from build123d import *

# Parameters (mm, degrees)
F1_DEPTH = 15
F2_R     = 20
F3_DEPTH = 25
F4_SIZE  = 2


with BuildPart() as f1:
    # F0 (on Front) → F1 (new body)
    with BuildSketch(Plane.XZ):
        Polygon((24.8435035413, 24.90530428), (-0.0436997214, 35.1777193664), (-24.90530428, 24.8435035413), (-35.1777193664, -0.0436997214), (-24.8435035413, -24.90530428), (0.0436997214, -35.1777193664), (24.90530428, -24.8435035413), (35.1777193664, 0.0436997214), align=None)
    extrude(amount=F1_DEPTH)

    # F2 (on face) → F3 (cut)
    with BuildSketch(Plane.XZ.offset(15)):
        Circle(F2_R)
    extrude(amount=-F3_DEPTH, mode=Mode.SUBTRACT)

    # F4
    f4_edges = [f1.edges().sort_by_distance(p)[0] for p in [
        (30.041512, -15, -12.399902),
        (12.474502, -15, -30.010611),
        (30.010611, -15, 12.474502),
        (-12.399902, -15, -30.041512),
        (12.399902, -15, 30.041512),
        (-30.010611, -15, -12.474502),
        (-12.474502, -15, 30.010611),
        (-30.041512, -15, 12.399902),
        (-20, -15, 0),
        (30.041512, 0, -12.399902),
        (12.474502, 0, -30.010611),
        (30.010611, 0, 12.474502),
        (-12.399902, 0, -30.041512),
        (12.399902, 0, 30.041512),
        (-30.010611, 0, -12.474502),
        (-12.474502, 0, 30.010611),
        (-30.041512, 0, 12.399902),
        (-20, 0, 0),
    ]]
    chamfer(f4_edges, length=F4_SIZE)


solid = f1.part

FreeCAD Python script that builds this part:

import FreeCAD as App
import Part
import Sketcher

V = App.Vector
Q = App.Units.Quantity


def edges_at(feature, points):
    """Names of the edges that pass closest to the given points."""
    edges = feature.Shape.Edges
    near = lambda p: min(range(len(edges)), key=lambda i: edges[i].distToShape(Part.Vertex(*p))[0])
    return sorted({f"Edge{near(p) + 1}" for p in points})


def add_polygon(sketch, points):
    """Adds a closed chain of lines whose ends are joined by coincident constraints."""
    first, n = sketch.GeometryCount, len(points)
    for a, b in zip(points, points[1:] + points[:1]):
        sketch.addGeometry(Part.LineSegment(App.Vector(*a, 0), App.Vector(*b, 0)), False)
    for i in range(n):
        sketch.addConstraint(Sketcher.Constraint("Coincident", first + i, 2, first + (i + 1) % n, 1))

doc = App.newDocument("Part")
params = doc.addObject("Spreadsheet::Sheet", "Params")
for row, (alias, value) in enumerate([
    ("pad1_length", "15 mm"),
    ("sketch2_diameter", "40 mm"),
    ("pocket1_length", "25 mm"),
    ("chamfer_size", "2 mm"),
], start=1):
    params.set(f"A{row}", alias)
    params.set(f"B{row}", "=" + value)
    params.setAlias(f"B{row}", alias)

body = doc.addObject("PartDesign::Body", "Body")

sketch1 = doc.addObject("Sketcher::SketchObject", "Sketch")
body.addObject(sketch1)
sketch1.AttachmentSupport = (doc.XZ_Plane, [""])
sketch1.MapMode = "FlatFace"
add_polygon(sketch1, [(25, 25), (0, 35), (-25, 25), (-35, 0), (-25, -25), (0, -35), (25, -25), (35, 0)])
sketch1.addConstraint(Sketcher.Constraint("Symmetric", 0, 2, 4, 2, -1, 1))
sketch1.addConstraint(Sketcher.Constraint("Symmetric", 1, 2, 5, 2, -1, 1))
sketch1.addConstraint(Sketcher.Constraint("Symmetric", 2, 2, 6, 2, -1, 1))
sketch1.addConstraint(Sketcher.Constraint("Symmetric", 3, 2, 7, 2, -1, 1))
sketch1.addConstraint(Sketcher.Constraint("Perpendicular", 0, 2))
sketch1.addConstraint(Sketcher.Constraint("Perpendicular", 1, 3))
sketch1.addConstraint(Sketcher.Constraint("Equal", 0, 1))
sketch1.addConstraint(Sketcher.Constraint("Equal", 1, 2))
sketch1.addConstraint(Sketcher.Constraint("Equal", 2, 3))
sketch1.addConstraint(Sketcher.Constraint("DistanceX", 0, 2, -1, 1, Q("0.0437 mm")))
sketch1.addConstraint(Sketcher.Constraint("Distance", 0, Q("26.923882 mm")))
sketch1.addConstraint(Sketcher.Constraint("DistanceY", -1, 1, 0, 2, Q("35.177719 mm")))
pad1 = doc.addObject("PartDesign::Pad", "Pad")
body.addObject(pad1)
pad1.Profile = sketch1
pad1.setExpression("Length", "Params.pad1_length")

sketch2 = doc.addObject("Sketcher::SketchObject", "Sketch001")
body.addObject(sketch2)
sketch2.AttachmentSupport = (doc.XZ_Plane, [""])
sketch2.MapMode = "FlatFace"
sketch2.AttachmentOffset = App.Placement(V(0, 0, 15), App.Rotation())
sketch2.addGeometry(Part.Circle(V(0, 0, 0), V(0, 0, 1), 20), False)
sketch2.addConstraint(Sketcher.Constraint("Coincident", 0, 3, -1, 1))
sketch2.addConstraint(Sketcher.Constraint("Diameter", 0, Q("40 mm")))
sketch2.setExpression("Constraints[1]", "Params.sketch2_diameter")
pocket1 = doc.addObject("PartDesign::Pocket", "Pocket")
body.addObject(pocket1)
pocket1.Profile = sketch2
pocket1.setExpression("Length", "Params.pocket1_length")
doc.recompute()

chamfer = doc.addObject("PartDesign::Chamfer", "Chamfer")
body.addObject(chamfer)
chamfer.Base = (pocket1, edges_at(pocket1, [
    (30.042, -15, -12.4),
    (12.475, -15, -30.011),
    (30.011, -15, 12.475),
    (-12.4, -15, -30.042),
    (12.4, -15, 30.042),
    (-30.011, -15, -12.475),
    (-12.475, -15, 30.011),
    (-30.042, -15, 12.4),
    (-20, -15, 0),
    (30.042, 0, -12.4),
    (12.475, 0, -30.011),
    (30.011, 0, 12.475),
    (-12.4, 0, -30.042),
    (12.4, 0, 30.042),
    (-30.011, 0, -12.475),
    (-12.475, 0, 30.011),
    (-30.042, 0, 12.4),
    (-20, 0, 0),
]))
chamfer.setExpression("Size", "Params.chamfer_size")

doc.recompute()
